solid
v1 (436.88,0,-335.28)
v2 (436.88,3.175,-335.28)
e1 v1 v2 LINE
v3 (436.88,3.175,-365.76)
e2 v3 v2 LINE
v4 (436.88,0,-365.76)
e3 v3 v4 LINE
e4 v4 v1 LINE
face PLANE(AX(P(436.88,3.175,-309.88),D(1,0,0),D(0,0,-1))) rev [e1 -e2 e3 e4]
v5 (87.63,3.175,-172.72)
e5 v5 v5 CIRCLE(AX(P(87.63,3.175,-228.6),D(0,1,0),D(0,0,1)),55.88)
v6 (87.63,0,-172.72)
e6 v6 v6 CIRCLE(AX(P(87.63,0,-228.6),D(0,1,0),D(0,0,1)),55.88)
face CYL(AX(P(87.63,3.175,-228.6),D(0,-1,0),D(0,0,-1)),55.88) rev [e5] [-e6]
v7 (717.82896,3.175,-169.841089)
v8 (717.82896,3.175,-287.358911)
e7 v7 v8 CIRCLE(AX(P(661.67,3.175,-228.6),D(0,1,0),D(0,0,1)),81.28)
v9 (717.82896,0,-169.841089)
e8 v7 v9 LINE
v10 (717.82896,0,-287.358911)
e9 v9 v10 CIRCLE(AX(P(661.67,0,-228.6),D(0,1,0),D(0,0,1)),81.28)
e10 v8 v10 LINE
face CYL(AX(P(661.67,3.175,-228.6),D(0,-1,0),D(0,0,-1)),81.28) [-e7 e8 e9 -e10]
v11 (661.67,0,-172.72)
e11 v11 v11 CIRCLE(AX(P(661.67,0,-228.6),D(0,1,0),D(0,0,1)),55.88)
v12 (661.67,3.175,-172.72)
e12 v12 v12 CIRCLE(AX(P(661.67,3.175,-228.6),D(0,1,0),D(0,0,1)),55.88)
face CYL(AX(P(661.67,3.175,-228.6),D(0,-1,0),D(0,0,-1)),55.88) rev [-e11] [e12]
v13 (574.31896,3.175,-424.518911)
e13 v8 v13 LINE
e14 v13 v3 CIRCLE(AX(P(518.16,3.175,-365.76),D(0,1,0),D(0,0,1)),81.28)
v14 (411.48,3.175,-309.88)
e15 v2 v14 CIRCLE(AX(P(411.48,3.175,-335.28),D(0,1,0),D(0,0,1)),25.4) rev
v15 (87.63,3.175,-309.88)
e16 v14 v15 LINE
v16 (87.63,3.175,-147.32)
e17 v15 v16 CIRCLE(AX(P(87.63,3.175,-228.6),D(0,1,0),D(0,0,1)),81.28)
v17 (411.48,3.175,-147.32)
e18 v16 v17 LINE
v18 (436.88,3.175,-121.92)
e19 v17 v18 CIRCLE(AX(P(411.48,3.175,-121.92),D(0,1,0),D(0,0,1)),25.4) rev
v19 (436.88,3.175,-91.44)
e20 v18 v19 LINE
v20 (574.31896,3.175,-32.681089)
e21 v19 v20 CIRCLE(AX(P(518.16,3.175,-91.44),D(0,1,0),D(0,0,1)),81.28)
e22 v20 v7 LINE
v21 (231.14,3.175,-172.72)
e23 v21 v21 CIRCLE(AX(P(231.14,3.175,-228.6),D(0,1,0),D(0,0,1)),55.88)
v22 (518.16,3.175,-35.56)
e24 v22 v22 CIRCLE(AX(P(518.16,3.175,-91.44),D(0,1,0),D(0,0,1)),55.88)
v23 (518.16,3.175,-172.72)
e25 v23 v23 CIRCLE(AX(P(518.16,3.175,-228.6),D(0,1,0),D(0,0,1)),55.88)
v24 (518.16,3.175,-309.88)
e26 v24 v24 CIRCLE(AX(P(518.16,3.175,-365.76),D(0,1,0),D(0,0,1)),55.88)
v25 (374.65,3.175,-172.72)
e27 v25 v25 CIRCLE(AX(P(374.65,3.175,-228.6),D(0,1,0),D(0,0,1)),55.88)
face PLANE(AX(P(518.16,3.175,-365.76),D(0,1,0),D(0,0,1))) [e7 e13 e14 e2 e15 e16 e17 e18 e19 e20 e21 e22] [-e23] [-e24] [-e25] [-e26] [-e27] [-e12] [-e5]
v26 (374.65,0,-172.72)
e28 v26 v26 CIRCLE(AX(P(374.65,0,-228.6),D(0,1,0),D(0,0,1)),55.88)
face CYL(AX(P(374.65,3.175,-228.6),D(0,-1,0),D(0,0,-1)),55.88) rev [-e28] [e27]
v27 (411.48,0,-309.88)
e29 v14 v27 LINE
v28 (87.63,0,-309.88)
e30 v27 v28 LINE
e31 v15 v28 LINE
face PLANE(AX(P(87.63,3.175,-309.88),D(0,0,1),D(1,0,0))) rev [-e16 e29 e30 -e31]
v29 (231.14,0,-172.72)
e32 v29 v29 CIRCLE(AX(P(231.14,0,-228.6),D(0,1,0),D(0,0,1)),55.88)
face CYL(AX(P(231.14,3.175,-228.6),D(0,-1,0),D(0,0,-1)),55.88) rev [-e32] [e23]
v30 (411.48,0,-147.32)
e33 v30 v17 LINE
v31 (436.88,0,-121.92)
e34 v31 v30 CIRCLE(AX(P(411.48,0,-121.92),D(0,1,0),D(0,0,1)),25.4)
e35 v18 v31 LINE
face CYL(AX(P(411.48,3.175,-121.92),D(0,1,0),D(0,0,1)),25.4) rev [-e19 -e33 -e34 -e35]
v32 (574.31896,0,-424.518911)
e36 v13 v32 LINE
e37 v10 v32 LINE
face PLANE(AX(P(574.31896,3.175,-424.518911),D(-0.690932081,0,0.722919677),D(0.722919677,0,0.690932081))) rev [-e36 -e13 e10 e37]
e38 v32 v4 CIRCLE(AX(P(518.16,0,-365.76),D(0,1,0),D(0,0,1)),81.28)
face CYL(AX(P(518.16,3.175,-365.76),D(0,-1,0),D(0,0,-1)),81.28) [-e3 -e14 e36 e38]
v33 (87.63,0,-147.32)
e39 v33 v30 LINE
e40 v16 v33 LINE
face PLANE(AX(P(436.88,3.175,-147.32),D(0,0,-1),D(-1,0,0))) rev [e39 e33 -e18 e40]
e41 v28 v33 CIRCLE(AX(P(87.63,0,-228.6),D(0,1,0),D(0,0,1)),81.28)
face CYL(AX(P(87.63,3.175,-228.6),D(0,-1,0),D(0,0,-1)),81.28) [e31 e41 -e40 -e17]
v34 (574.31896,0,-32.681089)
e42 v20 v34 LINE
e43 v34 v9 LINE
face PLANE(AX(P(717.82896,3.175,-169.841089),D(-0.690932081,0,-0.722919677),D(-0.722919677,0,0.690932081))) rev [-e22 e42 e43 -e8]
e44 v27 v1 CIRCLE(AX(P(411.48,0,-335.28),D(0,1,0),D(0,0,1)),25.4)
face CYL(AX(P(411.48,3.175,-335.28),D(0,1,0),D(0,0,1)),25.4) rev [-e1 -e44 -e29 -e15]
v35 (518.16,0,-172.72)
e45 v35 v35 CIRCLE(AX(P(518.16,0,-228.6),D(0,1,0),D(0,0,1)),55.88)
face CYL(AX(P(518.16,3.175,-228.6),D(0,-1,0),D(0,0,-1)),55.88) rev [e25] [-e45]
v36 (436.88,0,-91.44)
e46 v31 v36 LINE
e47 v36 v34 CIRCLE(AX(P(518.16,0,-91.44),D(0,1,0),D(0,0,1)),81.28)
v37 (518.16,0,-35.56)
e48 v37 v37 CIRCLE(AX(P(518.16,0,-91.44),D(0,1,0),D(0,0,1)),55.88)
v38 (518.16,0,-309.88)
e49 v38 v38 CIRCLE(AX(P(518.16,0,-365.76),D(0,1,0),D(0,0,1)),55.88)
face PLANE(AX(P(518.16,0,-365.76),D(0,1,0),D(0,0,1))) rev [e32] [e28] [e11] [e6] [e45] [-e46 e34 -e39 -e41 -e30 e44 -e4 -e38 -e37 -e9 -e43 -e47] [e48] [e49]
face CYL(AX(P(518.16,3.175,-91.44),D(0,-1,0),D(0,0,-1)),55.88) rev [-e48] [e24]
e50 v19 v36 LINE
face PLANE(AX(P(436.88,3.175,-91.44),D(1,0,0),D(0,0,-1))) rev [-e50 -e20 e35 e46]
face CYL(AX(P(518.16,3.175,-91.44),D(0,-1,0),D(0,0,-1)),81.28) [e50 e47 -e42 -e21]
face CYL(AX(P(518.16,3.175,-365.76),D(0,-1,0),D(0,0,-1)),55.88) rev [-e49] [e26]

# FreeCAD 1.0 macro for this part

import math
import FreeCAD as App
import Part
import Sketcher

V = App.Vector
Q = App.Units.Quantity


def edges_at(feature, points):
    """Names of the edges that pass closest to the given points."""
    edges = feature.Shape.Edges
    near = lambda p: min(range(len(edges)), key=lambda i: edges[i].distToShape(Part.Vertex(*p))[0])
    return sorted({f"Edge{near(p) + 1}" for p in points})

doc = App.newDocument("Part")
body = doc.addObject("PartDesign::Body", "Body")

sketch1 = body.newObject("Sketcher::SketchObject", "Sketch")
sketch1.AttachmentSupport = (doc.getObject("XZ_Plane"), [""])
sketch1.MapMode = "FlatFace"
sketch1.addGeometry(Part.LineSegment(V(436.88, -309.88, 0), V(87.63, -309.88, 0)), False)
sketch1.addGeometry(Part.ArcOfCircle(Part.Circle(V(87.63, -228.6, 0), V(0, 0, 1), 81.28), math.radians(90), math.radians(270)), False)
sketch1.addGeometry(Part.LineSegment(V(87.63, -147.32, 0), V(436.88, -147.32, 0)), False)
sketch1.addGeometry(Part.LineSegment(V(436.88, -147.32, 0), V(436.88, -91.44, 0)), False)
sketch1.addGeometry(Part.ArcOfCircle(Part.Circle(V(518.16, -91.44, 0), V(0, 0, 1), 81.28), math.radians(46.296063), math.radians(180)), False)
sketch1.addGeometry(Part.LineSegment(V(574.31896, -32.681089, 0), V(717.82896, -169.841089, 0)), False)
sketch1.addGeometry(Part.ArcOfCircle(Part.Circle(V(661.67, -228.6, 0), V(0, 0, 1), 81.28), math.radians(-46.296063), math.radians(46.296063)), False)
sketch1.addGeometry(Part.LineSegment(V(717.82896, -287.358911, 0), V(574.31896, -424.518911, 0)), False)
sketch1.addGeometry(Part.ArcOfCircle(Part.Circle(V(518.16, -365.76, 0), V(0, 0, 1), 81.28), math.radians(180), math.radians(313.703937)), False)
sketch1.addGeometry(Part.LineSegment(V(436.88, -365.76, 0), V(436.88, -309.88, 0)), False)
sketch1.addGeometry(Part.Circle(V(518.16, -91.44, 0), V(0, 0, 1), 55.88), False)
sketch1.addGeometry(Part.Circle(V(661.67, -228.6, 0), V(0, 0, 1), 55.88), False)
sketch1.addGeometry(Part.Circle(V(518.16, -228.6, 0), V(0, 0, 1), 55.88), False)
sketch1.addGeometry(Part.Circle(V(518.16, -365.76, 0), V(0, 0, 1), 55.88), False)
sketch1.addGeometry(Part.Circle(V(374.65, -228.6, 0), V(0, 0, 1), 55.88), False)
sketch1.addGeometry(Part.Circle(V(231.14, -228.6, 0), V(0, 0, 1), 55.88), False)
sketch1.addGeometry(Part.Circle(V(87.63, -228.6, 0), V(0, 0, 1), 55.88), False)
sketch1.addConstraint(Sketcher.Constraint("Tangent", 0, 2, 1, 2))
sketch1.addConstraint(Sketcher.Constraint("Tangent", 1, 1, 2, 1))
sketch1.addConstraint(Sketcher.Constraint("Coincident", 2, 2, 3, 1))
sketch1.addConstraint(Sketcher.Constraint("Tangent", 3, 2, 4, 2))
sketch1.addConstraint(Sketcher.Constraint("Tangent", 4, 1, 5, 1))
sketch1.addConstraint(Sketcher.Constraint("Tangent", 5, 2, 6, 2))
sketch1.addConstraint(Sketcher.Constraint("Tangent", 6, 1, 7, 1))
sketch1.addConstraint(Sketcher.Constraint("Tangent", 7, 2, 8, 2))
sketch1.addConstraint(Sketcher.Constraint("Tangent", 8, 1, 9, 1))
sketch1.addConstraint(Sketcher.Constraint("Coincident", 9, 2, 0, 1))
sketch1.addConstraint(Sketcher.Constraint("Horizontal", 0))
sketch1.addConstraint(Sketcher.Constraint("Horizontal", 2))
sketch1.addConstraint(Sketcher.Constraint("Vertical", 3))
sketch1.addConstraint(Sketcher.Constraint("Vertical", 9))
sketch1.addConstraint(Sketcher.Constraint("Coincident", 10, 3, 4, 3))
sketch1.addConstraint(Sketcher.Constraint("Coincident", 11, 3, 6, 3))
sketch1.addConstraint(Sketcher.Constraint("Coincident", 13, 3, 8, 3))
sketch1.addConstraint(Sketcher.Constraint("Coincident", 16, 3, 1, 3))
sketch1.addConstraint(Sketcher.Constraint("Equal", 1, 4))
sketch1.addConstraint(Sketcher.Constraint("Equal", 4, 6))
sketch1.addConstraint(Sketcher.Constraint("Equal", 6, 8))
sketch1.addConstraint(Sketcher.Constraint("Equal", 10, 11))
sketch1.addConstraint(Sketcher.Constraint("Equal", 11, 12))
sketch1.addConstraint(Sketcher.Constraint("Equal", 12, 13))
sketch1.addConstraint(Sketcher.Constraint("Equal", 13, 14))
sketch1.addConstraint(Sketcher.Constraint("Equal", 14, 15))
sketch1.addConstraint(Sketcher.Constraint("Equal", 15, 16))
sketch1.addConstraint(Sketcher.Constraint("Horizontal", 1, 3, 6, 3))
sketch1.addConstraint(Sketcher.Constraint("Horizontal", 11, 3, 12, 3))
sketch1.addConstraint(Sketcher.Constraint("Horizontal", 12, 3, 14, 3))
sketch1.addConstraint(Sketcher.Constraint("Horizontal", 14, 3, 15, 3))
sketch1.addConstraint(Sketcher.Constraint("Vertical", 4, 3, 8, 3))
sketch1.addConstraint(Sketcher.Constraint("Vertical", 10, 3, 12, 3))
sketch1.addConstraint(Sketcher.Constraint("Vertical", 5, 2, 6, 1))
sketch1.addConstraint(Sketcher.Constraint("Diameter", 10, Q("4.4 in")))
sketch1.addConstraint(Sketcher.Constraint("Radius", 1, Q("3.2 in")))
sketch1.addConstraint(Sketcher.Constraint("DistanceY", 3, 1, 3, 2, Q("2.2 in")))
sketch1.addConstraint(Sketcher.Constraint("DistanceY", 1, 3, -1, 1, Q("9 in")))
sketch1.addConstraint(Sketcher.Constraint("DistanceX", 0, 2, 0, 1, Q("13.75 in")))
sketch1.addConstraint(Sketcher.Constraint("DistanceX", -1, 1, 4, 3, Q("20.4 in")))
sketch1.addConstraint(Sketcher.Constraint("DistanceX", -1, 1, 15, 3, Q("9.1 in")))
sketch1.addConstraint(Sketcher.Constraint("DistanceX", 1, 3, 6, 3, Q("22.6 in")))
sketch1.addConstraint(Sketcher.Constraint("DistanceX", 16, 3, 14, 3, Q("11.3 in")))
pad1 = body.newObject("PartDesign::Pad", "Pad")
pad1.Profile = sketch1
pad1.Length = Q("0.125 in")
pad1.Reversed = True
doc.recompute()

fillet = body.newObject("PartDesign::Fillet", "Fillet")
fillet.Base = (pad1, edges_at(pad1, [(436.88, 1.587, -147.32), (436.88, 1.587, -309.88)]))
fillet.Radius = Q("1 in")

doc.recompute()
